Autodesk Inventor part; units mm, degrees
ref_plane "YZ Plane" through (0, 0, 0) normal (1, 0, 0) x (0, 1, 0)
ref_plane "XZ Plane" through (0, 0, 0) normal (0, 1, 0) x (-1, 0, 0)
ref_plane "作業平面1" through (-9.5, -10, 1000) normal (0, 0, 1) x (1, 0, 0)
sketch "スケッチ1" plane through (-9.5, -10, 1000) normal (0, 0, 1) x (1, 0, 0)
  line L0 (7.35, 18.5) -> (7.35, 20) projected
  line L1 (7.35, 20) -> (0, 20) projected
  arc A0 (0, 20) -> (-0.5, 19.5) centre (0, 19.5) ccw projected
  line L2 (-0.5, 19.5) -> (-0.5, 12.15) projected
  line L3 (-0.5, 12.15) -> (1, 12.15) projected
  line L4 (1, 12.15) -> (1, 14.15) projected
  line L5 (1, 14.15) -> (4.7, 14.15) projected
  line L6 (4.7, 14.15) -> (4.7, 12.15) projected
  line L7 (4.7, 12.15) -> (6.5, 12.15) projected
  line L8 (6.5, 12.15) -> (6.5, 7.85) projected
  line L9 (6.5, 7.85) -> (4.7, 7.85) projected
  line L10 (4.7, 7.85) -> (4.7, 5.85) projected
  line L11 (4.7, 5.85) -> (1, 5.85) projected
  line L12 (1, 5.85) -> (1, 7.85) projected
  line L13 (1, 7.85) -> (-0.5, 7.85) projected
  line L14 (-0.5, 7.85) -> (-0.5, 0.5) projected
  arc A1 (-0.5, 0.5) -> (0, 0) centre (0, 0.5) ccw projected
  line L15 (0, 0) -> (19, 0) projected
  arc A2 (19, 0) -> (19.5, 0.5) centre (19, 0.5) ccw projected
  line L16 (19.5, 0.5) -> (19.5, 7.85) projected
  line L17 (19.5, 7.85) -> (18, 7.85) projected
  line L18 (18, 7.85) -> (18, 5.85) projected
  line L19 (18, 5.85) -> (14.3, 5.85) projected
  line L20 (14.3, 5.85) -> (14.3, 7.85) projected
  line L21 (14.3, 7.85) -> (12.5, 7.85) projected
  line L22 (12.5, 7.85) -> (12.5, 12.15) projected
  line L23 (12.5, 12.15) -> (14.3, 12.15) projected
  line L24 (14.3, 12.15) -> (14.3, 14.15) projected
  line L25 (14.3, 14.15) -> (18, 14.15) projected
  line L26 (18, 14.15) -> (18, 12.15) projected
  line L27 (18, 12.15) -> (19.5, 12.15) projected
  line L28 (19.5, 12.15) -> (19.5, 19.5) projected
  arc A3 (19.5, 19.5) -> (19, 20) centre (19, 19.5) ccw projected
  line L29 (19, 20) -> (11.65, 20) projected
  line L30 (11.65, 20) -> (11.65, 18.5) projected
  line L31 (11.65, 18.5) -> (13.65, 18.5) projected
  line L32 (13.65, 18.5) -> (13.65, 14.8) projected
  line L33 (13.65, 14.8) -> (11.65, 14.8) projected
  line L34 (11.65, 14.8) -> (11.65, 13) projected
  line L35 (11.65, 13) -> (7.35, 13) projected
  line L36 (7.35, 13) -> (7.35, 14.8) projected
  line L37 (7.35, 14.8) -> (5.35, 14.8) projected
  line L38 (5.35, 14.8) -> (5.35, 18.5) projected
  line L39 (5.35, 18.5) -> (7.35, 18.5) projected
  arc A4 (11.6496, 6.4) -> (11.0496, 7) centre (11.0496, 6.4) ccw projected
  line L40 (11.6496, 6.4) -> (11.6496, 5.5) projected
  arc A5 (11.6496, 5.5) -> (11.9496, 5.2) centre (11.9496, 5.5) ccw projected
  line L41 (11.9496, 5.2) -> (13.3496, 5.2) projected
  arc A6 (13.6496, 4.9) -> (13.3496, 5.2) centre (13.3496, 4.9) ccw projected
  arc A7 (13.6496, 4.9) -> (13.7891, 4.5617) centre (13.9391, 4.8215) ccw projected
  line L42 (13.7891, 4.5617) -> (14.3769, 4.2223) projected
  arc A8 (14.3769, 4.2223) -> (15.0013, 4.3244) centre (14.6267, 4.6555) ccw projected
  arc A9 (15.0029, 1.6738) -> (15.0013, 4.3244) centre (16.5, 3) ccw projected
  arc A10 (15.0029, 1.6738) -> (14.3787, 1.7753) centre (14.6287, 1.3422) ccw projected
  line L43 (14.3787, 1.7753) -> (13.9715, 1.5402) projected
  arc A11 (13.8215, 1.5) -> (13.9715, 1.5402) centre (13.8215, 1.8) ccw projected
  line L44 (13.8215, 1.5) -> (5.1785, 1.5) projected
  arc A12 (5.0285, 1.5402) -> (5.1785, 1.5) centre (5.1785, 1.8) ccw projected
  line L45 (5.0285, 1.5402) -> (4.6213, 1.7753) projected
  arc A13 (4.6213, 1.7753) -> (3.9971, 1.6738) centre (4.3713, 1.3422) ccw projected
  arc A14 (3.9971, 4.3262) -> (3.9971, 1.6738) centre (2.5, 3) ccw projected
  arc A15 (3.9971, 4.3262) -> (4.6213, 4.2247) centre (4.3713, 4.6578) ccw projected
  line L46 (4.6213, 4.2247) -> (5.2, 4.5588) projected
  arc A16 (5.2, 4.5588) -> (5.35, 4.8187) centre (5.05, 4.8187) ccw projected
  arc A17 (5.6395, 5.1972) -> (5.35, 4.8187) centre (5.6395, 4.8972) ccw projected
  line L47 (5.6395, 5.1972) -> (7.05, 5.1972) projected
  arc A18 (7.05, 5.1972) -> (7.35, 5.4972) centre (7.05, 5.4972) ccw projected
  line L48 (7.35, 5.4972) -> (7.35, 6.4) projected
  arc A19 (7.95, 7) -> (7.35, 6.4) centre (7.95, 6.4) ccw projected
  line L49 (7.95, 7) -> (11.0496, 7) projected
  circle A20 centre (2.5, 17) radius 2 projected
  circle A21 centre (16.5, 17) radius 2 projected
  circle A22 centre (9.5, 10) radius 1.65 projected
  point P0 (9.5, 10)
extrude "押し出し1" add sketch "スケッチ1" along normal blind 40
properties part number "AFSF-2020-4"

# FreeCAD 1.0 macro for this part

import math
import FreeCAD as App
import Part
import Sketcher

V = App.Vector
Q = App.Units.Quantity

doc = App.newDocument("Part")
params = doc.addObject("Spreadsheet::Sheet", "Params")
for row, (alias, value) in enumerate([
    ("sketch1_diameter", "4 mm"),
    ("sketch1_diameter2", "3.3 mm"),
    ("sketch1_radius", "0.5 mm"),
    ("sketch1_radius2", "0.6 mm"),
    ("sketch1_radius3", "0.3 mm"),
    ("pad1_length", "40 mm"),
], start=1):
    params.set(f"A{row}", alias)
    params.set(f"B{row}", "=" + value)
    params.setAlias(f"B{row}", alias)

body = doc.addObject("PartDesign::Body", "Body")

# Sketch on XY plane
sketch1 = body.newObject("Sketcher::SketchObject", "Sketch")
sketch1.AttachmentSupport = (doc.getObject("XY_Plane"), [""])
sketch1.MapMode = "FlatFace"
sketch1.AttachmentOffset = App.Placement(V(0, 0, 1000), App.Rotation())
sketch1.addGeometry([
    Part.LineSegment(V(-4.15, 8.5, 0), V(-2.15, 8.5, 0)),  # 0
    Part.LineSegment(V(-2.15, 8.5, 0), V(-2.15, 10, 0)),  # 1
    Part.LineSegment(V(-2.15, 10, 0), V(-9.5, 10, 0)),  # 2
    Part.ArcOfCircle(Part.Circle(V(-9.5, 9.5, 0), V(0, 0, 1), 0.5), math.radians(90), math.radians(180)),  # 3
    Part.LineSegment(V(-10, 9.5, 0), V(-10, 2.15, 0)),  # 4
    Part.LineSegment(V(-10, 2.15, 0), V(-8.5, 2.15, 0)),  # 5
    Part.LineSegment(V(-8.5, 2.15, 0), V(-8.5, 4.15, 0)),  # 6
    Part.LineSegment(V(-8.5, 4.15, 0), V(-4.8, 4.15, 0)),  # 7
    Part.LineSegment(V(-4.8, 4.15, 0), V(-4.8, 2.15, 0)),  # 8
    Part.LineSegment(V(-4.8, 2.15, 0), V(-3, 2.15, 0)),  # 9
    Part.LineSegment(V(-3, 2.15, 0), V(-3, -2.15, 0)),  # 10
    Part.LineSegment(V(-3, -2.15, 0), V(-4.8, -2.15, 0)),  # 11
    Part.LineSegment(V(-4.8, -2.15, 0), V(-4.8, -4.15, 0)),  # 12
    Part.LineSegment(V(-4.8, -4.15, 0), V(-8.5, -4.15, 0)),  # 13
    Part.LineSegment(V(-8.5, -4.15, 0), V(-8.5, -2.15, 0)),  # 14
    Part.LineSegment(V(-8.5, -2.15, 0), V(-10, -2.15, 0)),  # 15
    Part.LineSegment(V(-10, -2.15, 0), V(-10, -9.5, 0)),  # 16
    Part.ArcOfCircle(Part.Circle(V(-9.5, -9.5, 0), V(0, 0, 1), 0.5), math.radians(180), math.radians(270)),  # 17
    Part.LineSegment(V(-9.5, -10, 0), V(9.5, -10, 0)),  # 18
    Part.ArcOfCircle(Part.Circle(V(9.5, -9.5, 0), V(0, 0, 1), 0.5), math.radians(-90), math.radians(0)),  # 19
    Part.LineSegment(V(10, -9.5, 0), V(10, -2.15, 0)),  # 20
    Part.LineSegment(V(10, -2.15, 0), V(8.5, -2.15, 0)),  # 21
    Part.LineSegment(V(8.5, -2.15, 0), V(8.5, -4.15, 0)),  # 22
    Part.LineSegment(V(8.5, -4.15, 0), V(4.8, -4.15, 0)),  # 23
    Part.LineSegment(V(4.8, -4.15, 0), V(4.8, -2.15, 0)),  # 24
    Part.LineSegment(V(4.8, -2.15, 0), V(3, -2.15, 0)),  # 25
    Part.LineSegment(V(3, -2.15, 0), V(3, 2.15, 0)),  # 26
    Part.LineSegment(V(3, 2.15, 0), V(4.8, 2.15, 0)),  # 27
    Part.LineSegment(V(4.8, 2.15, 0), V(4.8, 4.15, 0)),  # 28
    Part.LineSegment(V(4.8, 4.15, 0), V(8.5, 4.15, 0)),  # 29
    Part.LineSegment(V(8.5, 4.15, 0), V(8.5, 2.15, 0)),  # 30
    Part.LineSegment(V(8.5, 2.15, 0), V(10, 2.15, 0)),  # 31
    Part.LineSegment(V(10, 2.15, 0), V(10, 9.5, 0)),  # 32
    Part.ArcOfCircle(Part.Circle(V(9.5, 9.5, 0), V(0, 0, 1), 0.5), math.radians(0), math.radians(90)),  # 33
    Part.LineSegment(V(9.5, 10, 0), V(2.15, 10, 0)),  # 34
    Part.LineSegment(V(2.15, 10, 0), V(2.15, 8.5, 0)),  # 35
    Part.LineSegment(V(2.15, 8.5, 0), V(4.15, 8.5, 0)),  # 36
    Part.LineSegment(V(4.15, 8.5, 0), V(4.15, 4.8, 0)),  # 37
    Part.LineSegment(V(4.15, 4.8, 0), V(2.15, 4.8, 0)),  # 38
    Part.LineSegment(V(2.15, 4.8, 0), V(2.15, 3, 0)),  # 39
    Part.LineSegment(V(2.15, 3, 0), V(-2.15, 3, 0)),  # 40
    Part.LineSegment(V(-2.15, 3, 0), V(-2.15, 4.8, 0)),  # 41
    Part.LineSegment(V(-2.15, 4.8, 0), V(-4.15, 4.8, 0)),  # 42
    Part.LineSegment(V(-4.15, 4.8, 0), V(-4.15, 8.5, 0)),  # 43
    Part.ArcOfCircle(Part.Circle(V(1.55, -3.6, 0), V(0, 0, 1), 0.6), math.radians(0), math.radians(90)),  # 44
    Part.LineSegment(V(2.15, -3.6, 0), V(2.15, -4.5, 0)),  # 45
    Part.ArcOfCircle(Part.Circle(V(2.45, -4.5, 0), V(0, 0, 1), 0.3), math.radians(180), math.radians(270)),  # 46
    Part.LineSegment(V(2.45, -4.8, 0), V(3.85, -4.8, 0)),  # 47
    Part.ArcOfCircle(Part.Circle(V(3.85, -5.1, 0), V(0, 0, 1), 0.3), math.radians(0), math.radians(90)),  # 48
    Part.ArcOfCircle(Part.Circle(V(4.44, -5.18, 0), V(0, 0, 1), 0.3), math.radians(165), math.radians(240)),  # 49
    Part.LineSegment(V(4.29, -5.44, 0), V(4.88, -5.78, 0)),  # 50
    Part.ArcOfCircle(Part.Circle(V(5.13, -5.34, 0), V(0, 0, 1), 0.5), math.radians(-120), math.radians(-41)),  # 51
    Part.ArcOfCircle(Part.Circle(V(7, -7, 0), V(0, 0, 1), 2), math.radians(-138), math.radians(139)),  # 52
    Part.ArcOfCircle(Part.Circle(V(5.13, -8.66, 0), V(0, 0, 1), 0.5), math.radians(42), math.radians(120)),  # 53
    Part.LineSegment(V(4.88, -8.22, 0), V(4.47, -8.46, 0)),  # 54
    Part.ArcOfCircle(Part.Circle(V(4.32, -8.2, 0), V(0, 0, 1), 0.3), math.radians(-90), math.radians(-60)),  # 55
    Part.LineSegment(V(4.32, -8.5, 0), V(-4.32, -8.5, 0)),  # 56
    Part.ArcOfCircle(Part.Circle(V(-4.32, -8.2, 0), V(0, 0, 1), 0.3), math.radians(-120), math.radians(-90)),  # 57
    Part.LineSegment(V(-4.47, -8.46, 0), V(-4.88, -8.22, 0)),  # 58
    Part.ArcOfCircle(Part.Circle(V(-5.13, -8.66, 0), V(0, 0, 1), 0.5), math.radians(60), math.radians(138)),  # 59
    Part.ArcOfCircle(Part.Circle(V(-7, -7, 0), V(0, 0, 1), 2), math.radians(42), math.radians(318)),  # 60
    Part.ArcOfCircle(Part.Circle(V(-5.13, -5.34, 0), V(0, 0, 1), 0.5), math.radians(-138), math.radians(-60)),  # 61
    Part.LineSegment(V(-4.88, -5.78, 0), V(-4.3, -5.44, 0)),  # 62
    Part.ArcOfCircle(Part.Circle(V(-4.45, -5.18, 0), V(0, 0, 1), 0.3), math.radians(-60), math.radians(0)),  # 63
    Part.ArcOfCircle(Part.Circle(V(-3.86, -5.1, 0), V(0, 0, 1), 0.3), math.radians(90), math.radians(195)),  # 64
    Part.LineSegment(V(-3.86, -4.8, 0), V(-2.45, -4.8, 0)),  # 65
    Part.ArcOfCircle(Part.Circle(V(-2.45, -4.5, 0), V(0, 0, 1), 0.3), math.radians(-90), math.radians(0)),  # 66
    Part.LineSegment(V(-2.15, -4.5, 0), V(-2.15, -3.6, 0)),  # 67
    Part.ArcOfCircle(Part.Circle(V(-1.55, -3.6, 0), V(0, 0, 1), 0.6), math.radians(90), math.radians(180)),  # 68
    Part.LineSegment(V(-1.55, -3, 0), V(1.55, -3, 0)),  # 69
    Part.Circle(V(-7, 7, 0), V(0, 0, 1), 2),  # 70
    Part.Circle(V(0, 0, 0), V(0, 0, 1), 1.65),  # 71
    Part.Circle(V(7, 7, 0), V(0, 0, 1), 2),  # 72
], False)
sketch1.addConstraint([
    Sketcher.Constraint("Coincident", 0, 2, 1, 1),
    Sketcher.Constraint("Coincident", 1, 2, 2, 1),
    Sketcher.Constraint("Tangent", 2, 2, 3, 1),
    Sketcher.Constraint("Tangent", 3, 2, 4, 1),
    Sketcher.Constraint("Coincident", 4, 2, 5, 1),
    Sketcher.Constraint("Coincident", 5, 2, 6, 1),
    Sketcher.Constraint("Coincident", 6, 2, 7, 1),
    Sketcher.Constraint("Coincident", 7, 2, 8, 1),
    Sketcher.Constraint("Coincident", 8, 2, 9, 1),
    Sketcher.Constraint("Coincident", 9, 2, 10, 1),
    Sketcher.Constraint("Coincident", 10, 2, 11, 1),
    Sketcher.Constraint("Coincident", 11, 2, 12, 1),
    Sketcher.Constraint("Coincident", 12, 2, 13, 1),
    Sketcher.Constraint("Coincident", 13, 2, 14, 1),
    Sketcher.Constraint("Coincident", 14, 2, 15, 1),
    Sketcher.Constraint("Coincident", 15, 2, 16, 1),
    Sketcher.Constraint("Tangent", 16, 2, 17, 1),
    Sketcher.Constraint("Tangent", 17, 2, 18, 1),
    Sketcher.Constraint("Tangent", 18, 2, 19, 1),
    Sketcher.Constraint("Tangent", 19, 2, 20, 1),
    Sketcher.Constraint("Coincident", 20, 2, 21, 1),
    Sketcher.Constraint("Coincident", 21, 2, 22, 1),
    Sketcher.Constraint("Coincident", 22, 2, 23, 1),
    Sketcher.Constraint("Coincident", 23, 2, 24, 1),
    Sketcher.Constraint("Coincident", 24, 2, 25, 1),
    Sketcher.Constraint("Coincident", 25, 2, 26, 1),
    Sketcher.Constraint("Coincident", 26, 2, 27, 1),
    Sketcher.Constraint("Coincident", 27, 2, 28, 1),
    Sketcher.Constraint("Coincident", 28, 2, 29, 1),
    Sketcher.Constraint("Coincident", 29, 2, 30, 1),
    Sketcher.Constraint("Coincident", 30, 2, 31, 1),
    Sketcher.Constraint("Coincident", 31, 2, 32, 1),
    Sketcher.Constraint("Tangent", 32, 2, 33, 1),
    Sketcher.Constraint("Tangent", 33, 2, 34, 1),
    Sketcher.Constraint("Coincident", 34, 2, 35, 1),
    Sketcher.Constraint("Coincident", 35, 2, 36, 1),
    Sketcher.Constraint("Coincident", 36, 2, 37, 1),
    Sketcher.Constraint("Coincident", 37, 2, 38, 1),
    Sketcher.Constraint("Coincident", 38, 2, 39, 1),
    Sketcher.Constraint("Coincident", 39, 2, 40, 1),
    Sketcher.Constraint("Coincident", 40, 2, 41, 1),
    Sketcher.Constraint("Coincident", 41, 2, 42, 1),
    Sketcher.Constraint("Coincident", 42, 2, 43, 1),
    Sketcher.Constraint("Coincident", 43, 2, 0, 1),
    Sketcher.Constraint("Tangent", 44, 1, 45, 1),
    Sketcher.Constraint("Tangent", 45, 2, 46, 1),
    Sketcher.Constraint("Tangent", 46, 2, 47, 1),
    Sketcher.Constraint("Tangent", 47, 2, 48, 2),
    Sketcher.Constraint("Coincident", 48, 1, 49, 1),
    Sketcher.Constraint("Tangent", 49, 2, 50, 1),
    Sketcher.Constraint("Coincident", 50, 2, 51, 1),
    Sketcher.Constraint("Tangent", 51, 2, 52, 2),
    Sketcher.Constraint("Tangent", 52, 1, 53, 1),
    Sketcher.Constraint("Tangent", 53, 2, 54, 1),
    Sketcher.Constraint("Tangent", 54, 2, 55, 2),
    Sketcher.Constraint("Tangent", 55, 1, 56, 1),
    Sketcher.Constraint("Tangent", 56, 2, 57, 2),
    Sketcher.Constraint("Tangent", 57, 1, 58, 1),
    Sketcher.Constraint("Tangent", 58, 2, 59, 1),
    Sketcher.Constraint("Tangent", 59, 2, 60, 2),
    Sketcher.Constraint("Tangent", 60, 1, 61, 1),
    Sketcher.Constraint("Tangent", 61, 2, 62, 1),
    Sketcher.Constraint("Tangent", 62, 2, 63, 1),
    Sketcher.Constraint("Coincident", 63, 2, 64, 2),
    Sketcher.Constraint("Tangent", 64, 1, 65, 1),
    Sketcher.Constraint("Tangent", 65, 2, 66, 1),
    Sketcher.Constraint("Tangent", 66, 2, 67, 1),
    Sketcher.Constraint("Tangent", 67, 2, 68, 2),
    Sketcher.Constraint("Tangent", 68, 1, 69, 1),
    Sketcher.Constraint("Tangent", 69, 2, 44, 2),
    Sketcher.Constraint("Horizontal", 0),
    Sketcher.Constraint("Vertical", 1),
    Sketcher.Constraint("Horizontal", 2),
    Sketcher.Constraint("Vertical", 4),
    Sketcher.Constraint("Horizontal", 5),
    Sketcher.Constraint("Vertical", 6),
    Sketcher.Constraint("Horizontal", 7),
    Sketcher.Constraint("Vertical", 8),
    Sketcher.Constraint("Horizontal", 9),
    Sketcher.Constraint("Vertical", 10),
    Sketcher.Constraint("Horizontal", 11),
    Sketcher.Constraint("Vertical", 12),
    Sketcher.Constraint("Horizontal", 13),
    Sketcher.Constraint("Vertical", 14),
    Sketcher.Constraint("Horizontal", 15),
    Sketcher.Constraint("Vertical", 16),
    Sketcher.Constraint("Horizontal", 18),
    Sketcher.Constraint("Vertical", 20),
    Sketcher.Constraint("Horizontal", 21),
    Sketcher.Constraint("Vertical", 22),
    Sketcher.Constraint("Horizontal", 23),
    Sketcher.Constraint("Vertical", 24),
    Sketcher.Constraint("Horizontal", 25),
    Sketcher.Constraint("Vertical", 26),
    Sketcher.Constraint("Horizontal", 27),
    Sketcher.Constraint("Vertical", 28),
    Sketcher.Constraint("Horizontal", 29),
    Sketcher.Constraint("Vertical", 30),
    Sketcher.Constraint("Horizontal", 31),
    Sketcher.Constraint("Vertical", 32),
    Sketcher.Constraint("Horizontal", 34),
    Sketcher.Constraint("Vertical", 35),
    Sketcher.Constraint("Horizontal", 36),
    Sketcher.Constraint("Vertical", 37),
    Sketcher.Constraint("Horizontal", 38),
    Sketcher.Constraint("Vertical", 39),
    Sketcher.Constraint("Horizontal", 40),
    Sketcher.Constraint("Vertical", 41),
    Sketcher.Constraint("Horizontal", 42),
    Sketcher.Constraint("Vertical", 43),
    Sketcher.Constraint("Vertical", 45),
    Sketcher.Constraint("Horizontal", 47),
    Sketcher.Constraint("Horizontal", 56),
    Sketcher.Constraint("Horizontal", 65),
    Sketcher.Constraint("Vertical", 67),
    Sketcher.Constraint("Horizontal", 69),
    Sketcher.Constraint("Coincident", 71, 3, -1, 1),
    Sketcher.Constraint("Equal", 3, 17),
    Sketcher.Constraint("Equal", 17, 19),
    Sketcher.Constraint("Equal", 19, 33),
    Sketcher.Constraint("Equal", 46, 48),
    Sketcher.Constraint("Equal", 48, 49),
    Sketcher.Constraint("Equal", 33, 51),
    Sketcher.Constraint("Equal", 51, 53),
    Sketcher.Constraint("Equal", 49, 55),
    Sketcher.Constraint("Equal", 55, 57),
    Sketcher.Constraint("Equal", 53, 59),
    Sketcher.Constraint("Equal", 52, 60),
    Sketcher.Constraint("Equal", 59, 61),
    Sketcher.Constraint("Equal", 57, 63),
    Sketcher.Constraint("Equal", 63, 64),
    Sketcher.Constraint("Equal", 64, 66),
    Sketcher.Constraint("Equal", 44, 68),
    Sketcher.Constraint("Equal", 60, 70),
    Sketcher.Constraint("Equal", 70, 72),
    Sketcher.Constraint("Symmetric", 3, 3, 19, 3, -1, 1),
    Sketcher.Constraint("Symmetric", 17, 3, 33, 3, -1, 1),
    Sketcher.Constraint("Symmetric", 52, 3, 70, 3, -1, 1),
    Sketcher.Constraint("Symmetric", 60, 3, 72, 3, -1, 1),
    Sketcher.Constraint("Symmetric", 5, 2, 21, 2, -1, 1),
    Sketcher.Constraint("Symmetric", 7, 2, 23, 2, -1, 1),
    Sketcher.Constraint("Symmetric", 9, 2, 25, 2, -1, 1),
    Sketcher.Constraint("Symmetric", 11, 2, 27, 2, -1, 1),
    Sketcher.Constraint("Symmetric", 13, 2, 29, 2, -1, 1),
    Sketcher.Constraint("Symmetric", 53, 3, 59, 3, -2),
    Sketcher.Constraint("Symmetric", 15, 2, 20, 2, -2),
    Sketcher.Constraint("Symmetric", 13, 2, 22, 2, -2),
    Sketcher.Constraint("Symmetric", 11, 2, 24, 2, -2),
    Sketcher.Constraint("Symmetric", 0, 2, 35, 2, -2),
    Sketcher.Constraint("Symmetric", 38, 2, 41, 2, -2),
    Sketcher.Constraint("Parallel", 50, 58),
    Sketcher.Constraint("Parallel", 54, 62),
    Sketcher.Constraint("Horizontal", 52, 3, 60, 3),
    Sketcher.Constraint("Horizontal", 5, 2, 8, 2),
    Sketcher.Constraint("Horizontal", 27, 2, 30, 2),
    Sketcher.Constraint("Horizontal", 54, 2, 57, 1),
    Sketcher.Constraint("Vertical", 59, 3, 61, 3),
    Sketcher.Constraint("Vertical", 35, 2, 38, 2),
    Sketcher.Constraint("Vertical", 43, 2, 63, 2),
    Sketcher.Constraint("Vertical", 41, 2, 66, 2),
    Sketcher.Constraint("Equal", 0, 36),
    Sketcher.Constraint("Equal", 31, 1),
    Sketcher.Constraint("Equal", 34, 4),
    Sketcher.Constraint("Equal", 42, 6),
    Sketcher.Constraint("Equal", 40, 10),
    Sketcher.Constraint("Equal", 29, 37),
    Sketcher.Constraint("Equal", 27, 39),
    Sketcher.Constraint("Diameter", 70, 4.0),
    Sketcher.Constraint("Diameter", 71, 3.3),
    Sketcher.Constraint("Radius", 3, 0.5),
    Sketcher.Constraint("Radius", 44, 0.6),
    Sketcher.Constraint("Radius", 46, 0.3),
    Sketcher.Constraint("DistanceX", 0, 1, 0, 2, 2.0),
    Sketcher.Constraint("DistanceX", 18, 1, 18, 2, 19.0),
    Sketcher.Constraint("Angle", 54, Q("-149.9997 deg")),
    Sketcher.Constraint("DistanceX", 5, 1, 5, 2, 1.5),
    Sketcher.Constraint("DistanceX", 7, 1, 7, 2, 3.7),
    Sketcher.Constraint("DistanceX", 9, 1, 9, 2, 1.8),
    Sketcher.Constraint("DistanceX", 40, 2, 40, 1, 4.3),
    Sketcher.Constraint("DistanceX", 47, 1, 47, 2, 1.4),
    Sketcher.Constraint("DistanceY", 45, 2, 45, 1, 0.9),
    Sketcher.Constraint("DistanceX", -1, 1, 52, 3, 7.0),
    Sketcher.Constraint("DistanceY", 52, 3, -1, 1, 7.0),
    Sketcher.Constraint("DistanceY", 68, 1, -1, 1, 3.0),
    Sketcher.Constraint("DistanceY", 55, 3, -1, 1, 8.2),
    Sketcher.Constraint("DistanceY", 48, 1, -1, 1, 5.1),
    Sketcher.Constraint("DistanceX", 56, 2, 56, 1, 8.643),
    Sketcher.Constraint("DistanceX", 65, 1, 65, 2, 1.4105),
    Sketcher.Constraint("DistanceX", 69, 1, 69, 2, 3.0996),
    Sketcher.Constraint("DistanceY", 67, 1, 67, 2, 0.9028),
    Sketcher.Constraint("DistanceX", -1, 1, 49, 3, 4.439),
    Sketcher.Constraint("DistanceX", -1, 1, 50, 2, 4.877),
])
sketch1.setExpression("Constraints[167]", "Params.sketch1_diameter")
sketch1.setExpression("Constraints[168]", "Params.sketch1_diameter2")
sketch1.setExpression("Constraints[169]", "Params.sketch1_radius")
sketch1.setExpression("Constraints[170]", "Params.sketch1_radius2")
sketch1.setExpression("Constraints[171]", "Params.sketch1_radius3")
pad1 = body.newObject("PartDesign::Pad", "Pad")
pad1.Profile = sketch1
pad1.setExpression("Length", "Params.pad1_length")

doc.recompute()
